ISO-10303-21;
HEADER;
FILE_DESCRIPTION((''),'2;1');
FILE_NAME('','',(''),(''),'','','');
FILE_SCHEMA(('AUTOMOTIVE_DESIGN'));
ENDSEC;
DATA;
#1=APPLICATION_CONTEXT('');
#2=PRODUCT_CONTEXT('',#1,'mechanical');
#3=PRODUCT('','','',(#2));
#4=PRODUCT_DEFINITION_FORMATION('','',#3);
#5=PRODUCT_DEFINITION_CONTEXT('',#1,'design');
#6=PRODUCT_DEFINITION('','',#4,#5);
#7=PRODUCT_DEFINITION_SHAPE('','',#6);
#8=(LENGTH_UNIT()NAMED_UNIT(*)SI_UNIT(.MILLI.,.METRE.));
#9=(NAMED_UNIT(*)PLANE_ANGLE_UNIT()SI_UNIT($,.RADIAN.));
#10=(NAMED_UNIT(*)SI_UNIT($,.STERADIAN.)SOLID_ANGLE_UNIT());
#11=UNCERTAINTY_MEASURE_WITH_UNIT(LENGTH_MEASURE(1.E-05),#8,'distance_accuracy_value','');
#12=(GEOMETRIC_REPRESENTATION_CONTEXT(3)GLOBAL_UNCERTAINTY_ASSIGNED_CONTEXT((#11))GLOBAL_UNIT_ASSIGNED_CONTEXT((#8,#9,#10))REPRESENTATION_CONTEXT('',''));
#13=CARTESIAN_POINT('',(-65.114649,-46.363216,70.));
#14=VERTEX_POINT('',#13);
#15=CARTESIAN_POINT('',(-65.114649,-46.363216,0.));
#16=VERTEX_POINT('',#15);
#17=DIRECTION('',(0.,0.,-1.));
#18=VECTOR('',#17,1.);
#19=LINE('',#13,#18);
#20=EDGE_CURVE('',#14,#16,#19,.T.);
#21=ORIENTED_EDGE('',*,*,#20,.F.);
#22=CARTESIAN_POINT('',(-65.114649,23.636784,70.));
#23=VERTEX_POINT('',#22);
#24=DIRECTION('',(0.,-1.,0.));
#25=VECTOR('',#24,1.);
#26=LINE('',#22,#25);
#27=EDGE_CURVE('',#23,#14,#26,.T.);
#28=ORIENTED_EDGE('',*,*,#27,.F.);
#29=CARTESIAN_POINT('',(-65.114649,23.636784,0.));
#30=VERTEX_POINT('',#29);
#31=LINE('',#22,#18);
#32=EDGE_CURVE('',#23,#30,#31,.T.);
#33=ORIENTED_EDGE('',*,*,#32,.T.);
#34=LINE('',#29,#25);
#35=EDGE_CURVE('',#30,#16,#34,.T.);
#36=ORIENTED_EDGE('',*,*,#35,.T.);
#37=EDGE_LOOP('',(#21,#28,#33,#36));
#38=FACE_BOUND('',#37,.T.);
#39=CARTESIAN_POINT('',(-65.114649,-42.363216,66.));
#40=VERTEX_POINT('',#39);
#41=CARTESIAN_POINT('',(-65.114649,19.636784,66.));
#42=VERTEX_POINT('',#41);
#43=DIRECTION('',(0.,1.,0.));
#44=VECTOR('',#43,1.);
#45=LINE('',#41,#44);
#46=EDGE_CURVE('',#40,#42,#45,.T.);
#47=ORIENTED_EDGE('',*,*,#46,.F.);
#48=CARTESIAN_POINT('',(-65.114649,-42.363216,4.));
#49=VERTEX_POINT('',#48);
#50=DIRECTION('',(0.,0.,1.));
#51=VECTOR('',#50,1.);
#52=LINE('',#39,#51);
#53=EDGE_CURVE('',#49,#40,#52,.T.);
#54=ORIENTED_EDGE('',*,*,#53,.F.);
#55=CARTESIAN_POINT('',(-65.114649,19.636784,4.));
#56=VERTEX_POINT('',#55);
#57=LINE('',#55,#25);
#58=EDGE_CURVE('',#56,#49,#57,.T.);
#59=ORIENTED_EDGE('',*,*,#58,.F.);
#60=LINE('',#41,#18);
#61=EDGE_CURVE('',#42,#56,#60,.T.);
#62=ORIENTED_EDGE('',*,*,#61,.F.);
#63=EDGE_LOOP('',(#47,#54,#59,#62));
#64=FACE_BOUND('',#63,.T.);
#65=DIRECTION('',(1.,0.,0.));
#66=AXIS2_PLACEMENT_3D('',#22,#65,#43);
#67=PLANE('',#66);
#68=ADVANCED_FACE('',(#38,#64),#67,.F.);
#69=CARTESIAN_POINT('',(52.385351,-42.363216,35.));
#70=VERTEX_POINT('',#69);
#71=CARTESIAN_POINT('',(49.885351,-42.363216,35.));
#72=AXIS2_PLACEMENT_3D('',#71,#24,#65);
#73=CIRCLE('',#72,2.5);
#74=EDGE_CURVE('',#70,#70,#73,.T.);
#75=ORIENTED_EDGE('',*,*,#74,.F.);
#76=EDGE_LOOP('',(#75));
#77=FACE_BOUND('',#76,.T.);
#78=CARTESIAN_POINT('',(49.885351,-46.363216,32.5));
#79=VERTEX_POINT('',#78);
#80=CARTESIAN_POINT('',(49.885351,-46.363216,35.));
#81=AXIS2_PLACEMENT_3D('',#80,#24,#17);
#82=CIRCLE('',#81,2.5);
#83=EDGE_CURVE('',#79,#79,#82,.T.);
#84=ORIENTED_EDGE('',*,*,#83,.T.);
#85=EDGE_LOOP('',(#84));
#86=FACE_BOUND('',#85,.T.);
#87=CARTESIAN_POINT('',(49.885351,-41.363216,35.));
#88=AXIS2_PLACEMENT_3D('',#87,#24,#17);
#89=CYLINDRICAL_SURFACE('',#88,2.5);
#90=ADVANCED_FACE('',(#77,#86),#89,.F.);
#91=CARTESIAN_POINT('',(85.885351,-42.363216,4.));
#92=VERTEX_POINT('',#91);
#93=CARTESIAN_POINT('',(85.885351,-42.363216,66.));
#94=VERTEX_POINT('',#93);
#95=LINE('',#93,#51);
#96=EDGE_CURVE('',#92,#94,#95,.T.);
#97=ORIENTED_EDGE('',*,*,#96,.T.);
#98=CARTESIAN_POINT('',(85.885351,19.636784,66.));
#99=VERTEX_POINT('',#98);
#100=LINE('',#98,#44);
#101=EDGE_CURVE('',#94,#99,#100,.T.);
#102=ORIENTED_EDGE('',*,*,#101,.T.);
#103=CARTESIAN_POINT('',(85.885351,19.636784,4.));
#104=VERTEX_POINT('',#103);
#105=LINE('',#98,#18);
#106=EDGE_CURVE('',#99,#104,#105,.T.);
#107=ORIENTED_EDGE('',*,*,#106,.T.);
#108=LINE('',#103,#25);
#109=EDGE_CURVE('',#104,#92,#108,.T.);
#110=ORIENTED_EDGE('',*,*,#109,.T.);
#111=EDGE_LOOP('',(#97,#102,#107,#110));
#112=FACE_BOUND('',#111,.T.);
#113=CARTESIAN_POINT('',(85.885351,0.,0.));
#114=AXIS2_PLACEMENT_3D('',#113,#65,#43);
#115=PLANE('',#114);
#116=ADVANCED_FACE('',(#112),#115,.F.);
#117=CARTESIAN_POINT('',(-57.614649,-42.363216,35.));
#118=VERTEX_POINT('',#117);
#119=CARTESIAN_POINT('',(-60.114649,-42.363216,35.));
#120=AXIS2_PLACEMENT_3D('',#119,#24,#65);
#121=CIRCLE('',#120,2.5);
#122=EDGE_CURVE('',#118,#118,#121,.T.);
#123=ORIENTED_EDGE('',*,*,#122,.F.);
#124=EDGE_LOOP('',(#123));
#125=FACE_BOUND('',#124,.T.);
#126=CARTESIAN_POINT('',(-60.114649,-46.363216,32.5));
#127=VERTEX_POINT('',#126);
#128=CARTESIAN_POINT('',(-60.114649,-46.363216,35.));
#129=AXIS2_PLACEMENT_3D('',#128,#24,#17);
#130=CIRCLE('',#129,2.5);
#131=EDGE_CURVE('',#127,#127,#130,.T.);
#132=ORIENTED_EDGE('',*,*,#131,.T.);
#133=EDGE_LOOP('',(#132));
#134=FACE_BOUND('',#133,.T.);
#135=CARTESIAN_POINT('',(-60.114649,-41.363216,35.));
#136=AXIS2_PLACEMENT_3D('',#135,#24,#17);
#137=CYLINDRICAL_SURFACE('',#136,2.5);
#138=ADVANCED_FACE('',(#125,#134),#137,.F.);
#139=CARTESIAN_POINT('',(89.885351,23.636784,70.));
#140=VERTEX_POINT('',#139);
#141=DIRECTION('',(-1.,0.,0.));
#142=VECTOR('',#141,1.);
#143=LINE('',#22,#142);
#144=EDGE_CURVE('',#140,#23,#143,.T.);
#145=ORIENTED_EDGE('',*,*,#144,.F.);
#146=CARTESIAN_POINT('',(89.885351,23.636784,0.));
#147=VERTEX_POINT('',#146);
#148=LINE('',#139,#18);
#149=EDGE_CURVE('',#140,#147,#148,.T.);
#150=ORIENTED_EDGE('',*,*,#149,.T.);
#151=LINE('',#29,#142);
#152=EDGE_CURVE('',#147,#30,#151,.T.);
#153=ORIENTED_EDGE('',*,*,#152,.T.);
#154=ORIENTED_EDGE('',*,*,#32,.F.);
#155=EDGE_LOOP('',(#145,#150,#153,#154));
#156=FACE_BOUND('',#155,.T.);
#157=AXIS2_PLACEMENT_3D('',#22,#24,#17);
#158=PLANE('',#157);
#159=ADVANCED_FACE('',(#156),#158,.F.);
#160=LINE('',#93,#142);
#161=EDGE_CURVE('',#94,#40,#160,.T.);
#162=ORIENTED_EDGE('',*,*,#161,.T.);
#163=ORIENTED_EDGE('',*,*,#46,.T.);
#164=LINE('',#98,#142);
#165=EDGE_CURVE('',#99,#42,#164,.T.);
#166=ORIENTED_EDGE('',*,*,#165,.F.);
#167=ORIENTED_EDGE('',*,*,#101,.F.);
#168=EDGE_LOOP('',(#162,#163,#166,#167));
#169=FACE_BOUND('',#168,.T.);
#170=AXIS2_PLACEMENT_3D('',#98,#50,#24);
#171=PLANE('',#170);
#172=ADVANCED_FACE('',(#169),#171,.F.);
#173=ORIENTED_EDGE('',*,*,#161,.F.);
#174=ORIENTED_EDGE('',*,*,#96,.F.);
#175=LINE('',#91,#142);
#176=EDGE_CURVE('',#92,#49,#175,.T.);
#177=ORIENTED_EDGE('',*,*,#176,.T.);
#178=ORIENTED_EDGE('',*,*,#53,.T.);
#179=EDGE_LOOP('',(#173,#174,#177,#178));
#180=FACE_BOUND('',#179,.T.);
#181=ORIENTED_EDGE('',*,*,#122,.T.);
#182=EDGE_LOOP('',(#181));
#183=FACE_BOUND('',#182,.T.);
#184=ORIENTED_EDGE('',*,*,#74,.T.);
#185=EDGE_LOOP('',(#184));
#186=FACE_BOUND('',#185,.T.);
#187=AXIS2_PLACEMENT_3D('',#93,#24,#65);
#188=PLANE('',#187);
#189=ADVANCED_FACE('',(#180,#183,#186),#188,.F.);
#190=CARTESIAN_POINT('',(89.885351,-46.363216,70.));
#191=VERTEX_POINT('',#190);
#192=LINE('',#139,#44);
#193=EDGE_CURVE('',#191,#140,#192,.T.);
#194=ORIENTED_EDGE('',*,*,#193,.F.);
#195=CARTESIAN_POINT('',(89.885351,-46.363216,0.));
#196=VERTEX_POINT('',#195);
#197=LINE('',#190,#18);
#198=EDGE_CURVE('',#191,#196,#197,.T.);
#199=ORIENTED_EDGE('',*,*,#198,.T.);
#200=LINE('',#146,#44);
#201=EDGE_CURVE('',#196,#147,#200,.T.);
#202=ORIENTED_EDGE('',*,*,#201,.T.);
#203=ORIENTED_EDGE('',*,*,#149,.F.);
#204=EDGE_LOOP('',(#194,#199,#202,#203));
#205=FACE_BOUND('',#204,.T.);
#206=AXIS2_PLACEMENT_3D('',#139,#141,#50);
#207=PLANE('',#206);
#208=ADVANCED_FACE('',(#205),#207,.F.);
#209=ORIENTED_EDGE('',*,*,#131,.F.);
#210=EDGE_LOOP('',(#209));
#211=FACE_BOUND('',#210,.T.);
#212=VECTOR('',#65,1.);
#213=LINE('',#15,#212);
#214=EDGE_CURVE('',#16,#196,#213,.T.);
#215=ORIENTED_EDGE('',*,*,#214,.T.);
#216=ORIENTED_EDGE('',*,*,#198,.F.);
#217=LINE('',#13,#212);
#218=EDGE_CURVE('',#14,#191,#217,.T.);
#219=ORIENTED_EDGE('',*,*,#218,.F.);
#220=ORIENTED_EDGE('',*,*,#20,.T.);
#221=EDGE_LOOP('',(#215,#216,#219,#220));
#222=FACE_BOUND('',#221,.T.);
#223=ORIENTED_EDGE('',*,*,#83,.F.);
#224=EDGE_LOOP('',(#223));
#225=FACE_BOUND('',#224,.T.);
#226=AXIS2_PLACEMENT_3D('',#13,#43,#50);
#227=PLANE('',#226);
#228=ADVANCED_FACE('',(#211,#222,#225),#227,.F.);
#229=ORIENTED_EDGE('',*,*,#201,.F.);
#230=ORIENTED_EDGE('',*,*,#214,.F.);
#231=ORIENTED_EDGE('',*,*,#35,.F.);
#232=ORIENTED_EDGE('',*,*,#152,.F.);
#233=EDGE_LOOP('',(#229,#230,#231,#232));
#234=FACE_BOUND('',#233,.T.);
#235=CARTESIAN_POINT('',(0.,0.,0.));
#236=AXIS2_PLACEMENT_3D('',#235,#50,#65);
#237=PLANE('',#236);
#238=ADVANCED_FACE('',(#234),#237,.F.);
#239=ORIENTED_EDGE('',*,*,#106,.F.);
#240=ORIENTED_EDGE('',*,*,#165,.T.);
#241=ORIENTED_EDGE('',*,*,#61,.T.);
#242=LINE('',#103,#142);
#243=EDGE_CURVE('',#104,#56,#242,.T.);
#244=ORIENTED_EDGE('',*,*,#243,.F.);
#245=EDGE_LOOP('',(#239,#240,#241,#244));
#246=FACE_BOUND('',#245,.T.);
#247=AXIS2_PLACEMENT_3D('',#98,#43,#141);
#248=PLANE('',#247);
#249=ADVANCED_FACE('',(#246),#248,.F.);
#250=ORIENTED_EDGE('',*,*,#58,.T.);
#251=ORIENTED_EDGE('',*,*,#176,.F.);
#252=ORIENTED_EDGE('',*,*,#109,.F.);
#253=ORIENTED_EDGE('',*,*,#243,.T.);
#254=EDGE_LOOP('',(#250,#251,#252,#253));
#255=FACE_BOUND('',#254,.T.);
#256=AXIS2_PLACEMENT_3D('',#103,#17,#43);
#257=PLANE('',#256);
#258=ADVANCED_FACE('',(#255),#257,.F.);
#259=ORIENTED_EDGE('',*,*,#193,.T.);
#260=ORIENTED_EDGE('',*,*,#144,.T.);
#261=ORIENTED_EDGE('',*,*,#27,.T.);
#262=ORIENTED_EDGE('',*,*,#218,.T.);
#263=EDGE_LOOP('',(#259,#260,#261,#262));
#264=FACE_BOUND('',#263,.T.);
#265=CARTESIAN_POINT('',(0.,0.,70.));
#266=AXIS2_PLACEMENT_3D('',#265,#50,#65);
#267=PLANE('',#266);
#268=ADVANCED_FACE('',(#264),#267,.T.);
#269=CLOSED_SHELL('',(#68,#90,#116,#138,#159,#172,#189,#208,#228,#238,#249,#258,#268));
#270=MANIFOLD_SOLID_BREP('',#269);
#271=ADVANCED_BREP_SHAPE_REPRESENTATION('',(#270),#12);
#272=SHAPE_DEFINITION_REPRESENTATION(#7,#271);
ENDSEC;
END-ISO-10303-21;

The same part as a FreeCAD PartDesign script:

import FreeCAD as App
import Part
import Sketcher
from FreeCAD import Vector
Q = App.Units.Quantity


def add_polygon(sketch, points):
    """Adds a closed chain of lines whose ends are joined by coincident constraints."""
    first, n = sketch.GeometryCount, len(points)
    for a, b in zip(points, points[1:] + points[:1]):
        sketch.addGeometry(Part.LineSegment(App.Vector(*a, 0), App.Vector(*b, 0)), False)
    for i in range(n):
        sketch.addConstraint(Sketcher.Constraint("Coincident", first + i, 2, first + (i + 1) % n, 1))

doc = App.newDocument("Part")
params = doc.addObject("Spreadsheet::Sheet", "Params")
for row, (alias, value) in enumerate([
    ("sketch1_width", "155 mm"),
    ("sketch1_height", "70 mm"),
    ("pad1_length", "70 mm"),
    ("sketch2_width", "62 mm"),
    ("pocket1_length", "151 mm"),
    ("sketch3_diameter", "5 mm"),
    ("pocket2_length", "5 mm"),
], start=1):
    params.set(f"A{row}", alias)
    params.set(f"B{row}", "=" + value)
    params.setAlias(f"B{row}", alias)

body = doc.addObject("PartDesign::Body", "Body")

sketch1 = body.newObject("Sketcher::SketchObject", "Sketch")
sketch1.AttachmentSupport = (doc.getObject("XY_Plane"), [""])
sketch1.MapMode = "FlatFace"
add_polygon(sketch1, [(-65, 24), (-65, -46), (90, -46), (90, 24)])
sketch1.addConstraint([
    Sketcher.Constraint("Vertical", 0),
    Sketcher.Constraint("Horizontal", 1),
    Sketcher.Constraint("Vertical", 2),
    Sketcher.Constraint("Horizontal", 3),
    Sketcher.Constraint("DistanceX", 1, 1, 1, 2, Q("155 mm")),
    Sketcher.Constraint("DistanceY", 0, 2, 0, 1, Q("70 mm")),
    Sketcher.Constraint("DistanceX", 0, 2, -1, 1, Q("65.114649 mm")),
    Sketcher.Constraint("DistanceY", 0, 2, -1, 1, Q("46.363216 mm")),
])
sketch1.setExpression("Constraints[8]", "Params.sketch1_width")
sketch1.setExpression("Constraints[9]", "Params.sketch1_height")
pad1 = body.newObject("PartDesign::Pad", "Pad")
pad1.Profile = sketch1
pad1.setExpression("Length", "Params.pad1_length")

sketch2 = body.newObject("Sketcher::SketchObject", "Sketch001")
sketch2.AttachmentSupport = (doc.getObject("YZ_Plane"), [""])
sketch2.MapMode = "FlatFace"
sketch2.AttachmentOffset = App.Placement(Vector(0, 0, -65.114649), App.Rotation())
add_polygon(sketch2, [(20, 4), (-42, 4), (-42, 66), (20, 66)])
sketch2.addConstraint([
    Sketcher.Constraint("Horizontal", 0),
    Sketcher.Constraint("Vertical", 1),
    Sketcher.Constraint("Horizontal", 2),
    Sketcher.Constraint("Vertical", 3),
    Sketcher.Constraint("Equal", 2, 1),
    Sketcher.Constraint("DistanceX", 0, 2, 0, 1, Q("62 mm")),
    Sketcher.Constraint("DistanceY", -1, 1, 0, 2, Q("4 mm")),
    Sketcher.Constraint("DistanceX", 0, 2, -1, 1, Q("42.363216 mm")),
])
sketch2.setExpression("Constraints[9]", "Params.sketch2_width")
pocket1 = body.newObject("PartDesign::Pocket", "Pocket")
pocket1.Profile = sketch2
pocket1.setExpression("Length", "Params.pocket1_length")
pocket1.Reversed = True

sketch3 = body.newObject("Sketcher::SketchObject", "Sketch002")
sketch3.AttachmentSupport = (doc.getObject("XZ_Plane"), [""])
sketch3.MapMode = "FlatFace"
sketch3.AttachmentOffset = App.Placement(Vector(0, 0, 46.363216), App.Rotation())
sketch3.addGeometry([
    Part.Circle(Vector(-60.1, 35, 0), Vector(0, 0, 1), 2.5),
    Part.Circle(Vector(49.9, 35, 0), Vector(0, 0, 1), 2.5),
], False)
sketch3.addConstraint([
    Sketcher.Constraint("Equal", 0, 1),
    Sketcher.Constraint("Horizontal", 0, 3, 1, 3),
    Sketcher.Constraint("Diameter", 0, Q("5 mm")),
    Sketcher.Constraint("DistanceY", -1, 1, 0, 3, Q("35 mm")),
    Sketcher.Constraint("DistanceX", 0, 3, 1, 3, Q("110 mm")),
    Sketcher.Constraint("DistanceX", 0, 3, -1, 1, Q("60.114649 mm")),
])
sketch3.setExpression("Constraints[2]", "Params.sketch3_diameter")
pocket2 = body.newObject("PartDesign::Pocket", "Pocket001")
pocket2.Profile = sketch3
pocket2.setExpression("Length", "Params.pocket2_length")

doc.recompute()
